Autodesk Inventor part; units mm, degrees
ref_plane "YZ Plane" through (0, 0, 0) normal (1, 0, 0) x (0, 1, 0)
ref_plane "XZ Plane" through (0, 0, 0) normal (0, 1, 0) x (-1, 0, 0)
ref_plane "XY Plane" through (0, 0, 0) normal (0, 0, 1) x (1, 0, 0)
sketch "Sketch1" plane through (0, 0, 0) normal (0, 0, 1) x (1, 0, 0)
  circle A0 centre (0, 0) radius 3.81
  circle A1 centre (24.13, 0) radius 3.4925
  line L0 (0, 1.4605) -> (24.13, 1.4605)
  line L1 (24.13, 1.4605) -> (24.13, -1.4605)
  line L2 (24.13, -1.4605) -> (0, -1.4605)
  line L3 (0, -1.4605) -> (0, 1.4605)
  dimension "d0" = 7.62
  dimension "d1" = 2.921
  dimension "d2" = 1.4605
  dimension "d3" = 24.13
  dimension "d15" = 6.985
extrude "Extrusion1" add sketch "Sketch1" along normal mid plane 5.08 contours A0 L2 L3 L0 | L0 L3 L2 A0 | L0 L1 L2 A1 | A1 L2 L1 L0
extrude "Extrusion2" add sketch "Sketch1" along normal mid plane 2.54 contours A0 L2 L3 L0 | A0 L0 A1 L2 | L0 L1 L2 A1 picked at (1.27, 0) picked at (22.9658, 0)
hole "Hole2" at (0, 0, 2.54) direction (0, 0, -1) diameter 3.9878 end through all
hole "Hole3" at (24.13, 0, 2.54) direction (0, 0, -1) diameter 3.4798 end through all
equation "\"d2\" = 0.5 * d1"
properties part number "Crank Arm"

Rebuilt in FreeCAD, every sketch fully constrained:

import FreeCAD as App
import Part
import Sketcher
Q = App.Units.Quantity


def add_polygon(sketch, points):
    """Adds a closed chain of lines whose ends are joined by coincident constraints."""
    first, n = sketch.GeometryCount, len(points)
    for a, b in zip(points, points[1:] + points[:1]):
        sketch.addGeometry(Part.LineSegment(App.Vector(*a, 0), App.Vector(*b, 0)), False)
    for i in range(n):
        sketch.addConstraint(Sketcher.Constraint("Coincident", first + i, 2, first + (i + 1) % n, 1))

doc = App.newDocument("Part")
params = doc.addObject("Spreadsheet::Sheet", "Params")
for row, (alias, value) in enumerate([
    ("sketch1_diameter", "0.3 in"),
    ("sketch1_diameter2", "0.275 in"),
    ("pad1_length", "0.2 in"),
    ("sketch2_width", "0.95 in"),
    ("sketch2_height", "0.115 in"),
    ("pad2_length", "0.1 in"),
    ("sketch3_diameter", "0.157 in"),
    ("hole_diameter", "0.157 in"),
    ("sketch4_diameter", "0.137 in"),
    ("hole2_diameter", "0.137 in"),
], start=1):
    params.set(f"A{row}", alias)
    params.set(f"B{row}", "=" + value)
    params.setAlias(f"B{row}", alias)

body = doc.addObject("PartDesign::Body", "Body")
body.AllowCompound = True

sketch1 = doc.addObject("Sketcher::SketchObject", "Sketch")
body.addObject(sketch1)
sketch1.AttachmentSupport = (doc.XY_Plane, [""])
sketch1.MapMode = "FlatFace"
sketch1.addGeometry([
    Part.Circle(App.Vector(0, 0, 0), App.Vector(0, 0, 1), 3.8),
    Part.Circle(App.Vector(24.1, 0, 0), App.Vector(0, 0, 1), 3.5),
], False)
sketch1.addConstraint([
    Sketcher.Constraint("Coincident", 0, 3, -1, 1),
    Sketcher.Constraint("PointOnObject", 1, 3, -1),
    Sketcher.Constraint("Diameter", 0, Q("0.3 in")),
    Sketcher.Constraint("Diameter", 1, Q("0.275 in")),
    Sketcher.Constraint("DistanceX", -1, 1, 1, 3, Q("0.95 in")),
])
sketch1.setExpression("Constraints[2]", "Params.sketch1_diameter")
sketch1.setExpression("Constraints[3]", "Params.sketch1_diameter2")
pad1 = doc.addObject("PartDesign::Pad", "Pad")
body.addObject(pad1)
pad1.Profile = sketch1
pad1.setExpression("Length", "Params.pad1_length")
pad1.Midplane = True

sketch2 = doc.addObject("Sketcher::SketchObject", "Sketch001")
body.addObject(sketch2)
sketch2.AttachmentSupport = (doc.XY_Plane, [""])
sketch2.MapMode = "FlatFace"
add_polygon(sketch2, [(0, -1.5), (24.1, -1.5), (24.1, 1.5), (0, 1.5)])
sketch2.addConstraint([
    Sketcher.Constraint("Horizontal", 0),
    Sketcher.Constraint("Vertical", 1),
    Sketcher.Constraint("Horizontal", 2),
    Sketcher.Constraint("Vertical", 3),
    Sketcher.Constraint("Symmetric", 2, 2, 3, 2, -1, 1),
    Sketcher.Constraint("DistanceX", 0, 1, 0, 2, Q("0.95 in")),
    Sketcher.Constraint("DistanceY", 1, 1, 1, 2, Q("0.115 in")),
])
sketch2.setExpression("Constraints[9]", "Params.sketch2_width")
sketch2.setExpression("Constraints[10]", "Params.sketch2_height")
pad2 = doc.addObject("PartDesign::Pad", "Pad001")
body.addObject(pad2)
pad2.Profile = sketch2
pad2.setExpression("Length", "Params.pad2_length")
pad2.Midplane = True

sketch3 = doc.addObject("Sketcher::SketchObject", "Sketch002")
body.addObject(sketch3)
sketch3.AttachmentSupport = (doc.XY_Plane, [""])
sketch3.MapMode = "FlatFace"
sketch3.AttachmentOffset = App.Placement(App.Vector(0, 0, 0.1 * 25.4), App.Rotation())
sketch3.addGeometry(Part.Circle(App.Vector(0, 0, 0), App.Vector(0, 0, 1), 2), False)
sketch3.addConstraint([
    Sketcher.Constraint("Coincident", 0, 3, -1, 1),
    Sketcher.Constraint("Diameter", 0, Q("0.157 in")),
])
sketch3.setExpression("Constraints[1]", "Params.sketch3_diameter")
doc.recompute()
hole = doc.addObject("PartDesign::Hole", "Hole")
body.addObject(hole)
hole.Profile = sketch3
hole.ThreadType = "None"
hole.setExpression("Diameter", "Params.hole_diameter")
hole.DepthType = "ThroughAll"

sketch4 = doc.addObject("Sketcher::SketchObject", "Sketch003")
body.addObject(sketch4)
sketch4.AttachmentSupport = (doc.XY_Plane, [""])
sketch4.MapMode = "FlatFace"
sketch4.AttachmentOffset = App.Placement(App.Vector(0, 0, 0.1 * 25.4), App.Rotation())
sketch4.addGeometry(Part.Circle(App.Vector(24.1, 0, 0), App.Vector(0, 0, 1), 1.7), False)
sketch4.addConstraint([
    Sketcher.Constraint("PointOnObject", 0, 3, -1),
    Sketcher.Constraint("Diameter", 0, Q("0.137 in")),
    Sketcher.Constraint("DistanceX", -1, 1, 0, 3, Q("0.95 in")),
])
sketch4.setExpression("Constraints[1]", "Params.sketch4_diameter")
doc.recompute()
hole2 = doc.addObject("PartDesign::Hole", "Hole001")
body.addObject(hole2)
hole2.Profile = sketch4
hole2.ThreadType = "None"
hole2.setExpression("Diameter", "Params.hole2_diameter")
hole2.DepthType = "ThroughAll"

doc.recompute()
